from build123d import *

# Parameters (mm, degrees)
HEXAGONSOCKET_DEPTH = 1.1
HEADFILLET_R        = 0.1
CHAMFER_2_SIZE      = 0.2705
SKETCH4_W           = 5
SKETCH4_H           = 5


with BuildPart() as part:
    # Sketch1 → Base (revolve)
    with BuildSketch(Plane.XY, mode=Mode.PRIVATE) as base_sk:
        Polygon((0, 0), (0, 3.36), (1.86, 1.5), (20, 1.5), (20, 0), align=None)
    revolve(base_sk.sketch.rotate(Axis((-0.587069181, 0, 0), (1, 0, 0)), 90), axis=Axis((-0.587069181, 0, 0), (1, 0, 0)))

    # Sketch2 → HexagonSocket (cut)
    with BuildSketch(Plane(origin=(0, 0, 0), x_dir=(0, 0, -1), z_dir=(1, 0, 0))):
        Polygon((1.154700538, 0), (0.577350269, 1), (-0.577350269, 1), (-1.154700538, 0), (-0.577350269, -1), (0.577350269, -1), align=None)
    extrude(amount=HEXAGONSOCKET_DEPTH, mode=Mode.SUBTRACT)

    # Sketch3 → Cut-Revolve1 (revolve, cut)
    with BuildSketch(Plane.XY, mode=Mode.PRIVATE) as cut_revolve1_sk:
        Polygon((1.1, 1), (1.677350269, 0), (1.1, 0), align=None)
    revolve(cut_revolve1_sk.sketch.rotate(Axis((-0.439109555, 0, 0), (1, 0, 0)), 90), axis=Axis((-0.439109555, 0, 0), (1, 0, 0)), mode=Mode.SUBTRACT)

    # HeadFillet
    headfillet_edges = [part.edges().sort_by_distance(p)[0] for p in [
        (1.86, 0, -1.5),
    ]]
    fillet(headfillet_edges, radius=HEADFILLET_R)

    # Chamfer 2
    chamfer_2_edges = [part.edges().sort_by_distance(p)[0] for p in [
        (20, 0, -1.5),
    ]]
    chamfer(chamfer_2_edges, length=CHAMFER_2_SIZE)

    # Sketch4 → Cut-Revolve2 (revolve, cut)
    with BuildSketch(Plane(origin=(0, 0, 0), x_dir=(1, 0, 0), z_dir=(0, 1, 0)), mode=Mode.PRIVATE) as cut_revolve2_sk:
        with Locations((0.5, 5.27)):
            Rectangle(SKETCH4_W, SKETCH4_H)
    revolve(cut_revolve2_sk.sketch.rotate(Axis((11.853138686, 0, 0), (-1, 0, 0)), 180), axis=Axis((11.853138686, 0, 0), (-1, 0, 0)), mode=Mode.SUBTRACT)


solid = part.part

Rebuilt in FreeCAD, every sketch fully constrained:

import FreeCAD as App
import Part
import Sketcher

V = App.Vector
Q = App.Units.Quantity


def edges_at(feature, points):
    """Names of the edges that pass closest to the given points."""
    edges = feature.Shape.Edges
    near = lambda p: min(range(len(edges)), key=lambda i: edges[i].distToShape(Part.Vertex(*p))[0])
    return sorted({f"Edge{near(p) + 1}" for p in points})


def add_polygon(sketch, points):
    """Adds a closed chain of lines whose ends are joined by coincident constraints."""
    first, n = sketch.GeometryCount, len(points)
    for a, b in zip(points, points[1:] + points[:1]):
        sketch.addGeometry(Part.LineSegment(App.Vector(*a, 0), App.Vector(*b, 0)), False)
    for i in range(n):
        sketch.addConstraint(Sketcher.Constraint("Coincident", first + i, 2, first + (i + 1) % n, 1))

doc = App.newDocument("Part")
body = doc.addObject("PartDesign::Body", "Body")

# Sketch on XY plane
sketch1 = body.newObject("Sketcher::SketchObject", "Sketch")
sketch1.AttachmentSupport = (doc.getObject("XY_Plane"), [""])
sketch1.MapMode = "FlatFace"
add_polygon(sketch1, [(0, 3.36), (0, 0), (20, 0), (20, 1.5), (1.86, 1.5)])  # lines 0-4
sketch1.addConstraint(Sketcher.Constraint("Vertical", 0))
sketch1.addConstraint(Sketcher.Constraint("Horizontal", 1))
sketch1.addConstraint(Sketcher.Constraint("Vertical", 2))
sketch1.addConstraint(Sketcher.Constraint("Horizontal", 3))
sketch1.addConstraint(Sketcher.Constraint("Coincident", 0, 2, -1, 1))
sketch1.addConstraint(Sketcher.Constraint("DistanceX", 1, 1, 1, 2, Q("20 mm")))
sketch1.addConstraint(Sketcher.Constraint("Angle", 4, Q("135 deg")))
sketch1.addConstraint(Sketcher.Constraint("DistanceY", 2, 1, 2, 2, Q("1.5 mm")))
sketch1.addConstraint(Sketcher.Constraint("DistanceX", 3, 2, 3, 1, Q("18.14 mm")))
revolution = body.newObject("PartDesign::Revolution", "Revolution")
revolution.Profile = sketch1
revolution.ReferenceAxis = (sketch1, ["H_Axis"])
revolution.Angle = 360

# Sketch on YZ plane
sketch2 = body.newObject("Sketcher::SketchObject", "Sketch001")
sketch2.AttachmentSupport = (doc.getObject("YZ_Plane"), [""])
sketch2.MapMode = "FlatFace"
add_polygon(sketch2, [(0, -1.154701), (1, -0.57735), (1, 0.57735), (0, 1.154701), (-1, 0.57735), (-1, -0.57735)])  # lines 0-5
sketch2.addConstraint(Sketcher.Constraint("Vertical", 1))
sketch2.addConstraint(Sketcher.Constraint("Vertical", 4))
sketch2.addConstraint(Sketcher.Constraint("Symmetric", 0, 2, 3, 2, -1, 1))
sketch2.addConstraint(Sketcher.Constraint("Symmetric", 2, 2, 5, 2, -1, 1))
sketch2.addConstraint(Sketcher.Constraint("PointOnObject", 2, 2, -2))
sketch2.addConstraint(Sketcher.Constraint("Parallel", 2, 5))
sketch2.addConstraint(Sketcher.Constraint("Horizontal", 1, 2, 3, 2))
sketch2.addConstraint(Sketcher.Constraint("Angle", 0, Q("30 deg")))
sketch2.addConstraint(Sketcher.Constraint("DistanceX", -1, 1, 0, 2, Q("1 mm")))
sketch2.addConstraint(Sketcher.Constraint("DistanceY", 1, 1, 1, 2, Q("1.154701 mm")))
pocket1 = body.newObject("PartDesign::Pocket", "Pocket")
pocket1.Profile = sketch2
pocket1.Length = 1.1
pocket1.Reversed = True

# Sketch on XY plane
sketch3 = body.newObject("Sketcher::SketchObject", "Sketch002")
sketch3.AttachmentSupport = (doc.getObject("XY_Plane"), [""])
sketch3.MapMode = "FlatFace"
add_polygon(sketch3, [(1.67735, 0), (1.1, 1), (1.1, 0)])  # lines 0-2
sketch3.addConstraint(Sketcher.Constraint("Vertical", 1))
sketch3.addConstraint(Sketcher.Constraint("Horizontal", 2))
sketch3.addConstraint(Sketcher.Constraint("PointOnObject", 1, 2, -1))
sketch3.addConstraint(Sketcher.Constraint("DistanceY", 1, 2, 1, 1, Q("1 mm")))
sketch3.addConstraint(Sketcher.Constraint("Angle", 0, Q("120 deg")))
sketch3.addConstraint(Sketcher.Constraint("DistanceX", -1, 1, 0, 2, Q("1.1 mm")))
groove = body.newObject("PartDesign::Groove", "Groove")
groove.Profile = sketch3
groove.ReferenceAxis = (sketch3, ["H_Axis"])
groove.Angle = 360
doc.recompute()

fillet = body.newObject("PartDesign::Fillet", "Fillet")
fillet.Base = (groove, edges_at(groove, [(1.86, 0, -1.5)]))
fillet.Radius = 0.1
doc.recompute()

chamfer = body.newObject("PartDesign::Chamfer", "Chamfer")
chamfer.Base = (fillet, edges_at(fillet, [(20, 0, -1.5)]))
chamfer.Size = 0.2705

# Sketch on XZ plane
sketch4 = body.newObject("Sketcher::SketchObject", "Sketch003")
sketch4.AttachmentSupport = (doc.getObject("XZ_Plane"), [""])
sketch4.MapMode = "FlatFace"
add_polygon(sketch4, [(-2, -7.77), (-2, -2.77), (3, -2.77), (3, -7.77)])  # lines 0-3
sketch4.addConstraint(Sketcher.Constraint("Vertical", 0))
sketch4.addConstraint(Sketcher.Constraint("Horizontal", 1))
sketch4.addConstraint(Sketcher.Constraint("Vertical", 2))
sketch4.addConstraint(Sketcher.Constraint("Horizontal", 3))
sketch4.addConstraint(Sketcher.Constraint("Equal", 3, 0))
sketch4.addConstraint(Sketcher.Constraint("DistanceX", 1, 1, 1, 2, Q("5 mm")))
sketch4.addConstraint(Sketcher.Constraint("DistanceX", 0, 2, -1, 1, Q("2 mm")))
sketch4.addConstraint(Sketcher.Constraint("DistanceY", 0, 2, -1, 1, Q("2.77 mm")))
groove2 = body.newObject("PartDesign::Groove", "Groove001")
groove2.Profile = sketch4
groove2.ReferenceAxis = (sketch4, ["H_Axis"])
groove2.Angle = 360

doc.recompute()
